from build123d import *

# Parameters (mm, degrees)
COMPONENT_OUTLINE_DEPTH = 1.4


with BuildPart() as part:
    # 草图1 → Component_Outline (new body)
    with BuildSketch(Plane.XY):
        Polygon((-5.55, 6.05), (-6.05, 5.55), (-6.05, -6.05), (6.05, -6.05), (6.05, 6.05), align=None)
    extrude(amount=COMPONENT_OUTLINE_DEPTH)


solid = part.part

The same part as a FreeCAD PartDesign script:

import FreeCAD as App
import Part
import Sketcher

V = App.Vector
Q = App.Units.Quantity


def add_polygon(sketch, points):
    """Adds a closed chain of lines whose ends are joined by coincident constraints."""
    first, n = sketch.GeometryCount, len(points)
    for a, b in zip(points, points[1:] + points[:1]):
        sketch.addGeometry(Part.LineSegment(App.Vector(*a, 0), App.Vector(*b, 0)), False)
    for i in range(n):
        sketch.addConstraint(Sketcher.Constraint("Coincident", first + i, 2, first + (i + 1) % n, 1))

doc = App.newDocument("Part")
body = doc.addObject("PartDesign::Body", "Body")

sketch1 = body.newObject("Sketcher::SketchObject", "Sketch")
sketch1.AttachmentSupport = (doc.getObject("XY_Plane"), [""])
sketch1.MapMode = "FlatFace"
add_polygon(sketch1, [(-5.55, 6.05), (-6.05, 5.55), (-6.05, -6.05), (6.05, -6.05), (6.05, 6.05)])
sketch1.addConstraint([
    Sketcher.Constraint("Vertical", 1),
    Sketcher.Constraint("Horizontal", 2),
    Sketcher.Constraint("Vertical", 3),
    Sketcher.Constraint("Horizontal", 4),
    Sketcher.Constraint("Symmetric", 1, 2, 3, 2, -1, 1),
    Sketcher.Constraint("Equal", 4, 1),
    Sketcher.Constraint("Equal", 2, 3),
    Sketcher.Constraint("DistanceX", 2, 1, 2, 2, Q("12.1 mm")),
    Sketcher.Constraint("DistanceX", 4, 2, 4, 1, Q("11.6 mm")),
])
pad1 = body.newObject("PartDesign::Pad", "Pad")
pad1.Profile = sketch1
pad1.Length = 1.4

doc.recompute()
